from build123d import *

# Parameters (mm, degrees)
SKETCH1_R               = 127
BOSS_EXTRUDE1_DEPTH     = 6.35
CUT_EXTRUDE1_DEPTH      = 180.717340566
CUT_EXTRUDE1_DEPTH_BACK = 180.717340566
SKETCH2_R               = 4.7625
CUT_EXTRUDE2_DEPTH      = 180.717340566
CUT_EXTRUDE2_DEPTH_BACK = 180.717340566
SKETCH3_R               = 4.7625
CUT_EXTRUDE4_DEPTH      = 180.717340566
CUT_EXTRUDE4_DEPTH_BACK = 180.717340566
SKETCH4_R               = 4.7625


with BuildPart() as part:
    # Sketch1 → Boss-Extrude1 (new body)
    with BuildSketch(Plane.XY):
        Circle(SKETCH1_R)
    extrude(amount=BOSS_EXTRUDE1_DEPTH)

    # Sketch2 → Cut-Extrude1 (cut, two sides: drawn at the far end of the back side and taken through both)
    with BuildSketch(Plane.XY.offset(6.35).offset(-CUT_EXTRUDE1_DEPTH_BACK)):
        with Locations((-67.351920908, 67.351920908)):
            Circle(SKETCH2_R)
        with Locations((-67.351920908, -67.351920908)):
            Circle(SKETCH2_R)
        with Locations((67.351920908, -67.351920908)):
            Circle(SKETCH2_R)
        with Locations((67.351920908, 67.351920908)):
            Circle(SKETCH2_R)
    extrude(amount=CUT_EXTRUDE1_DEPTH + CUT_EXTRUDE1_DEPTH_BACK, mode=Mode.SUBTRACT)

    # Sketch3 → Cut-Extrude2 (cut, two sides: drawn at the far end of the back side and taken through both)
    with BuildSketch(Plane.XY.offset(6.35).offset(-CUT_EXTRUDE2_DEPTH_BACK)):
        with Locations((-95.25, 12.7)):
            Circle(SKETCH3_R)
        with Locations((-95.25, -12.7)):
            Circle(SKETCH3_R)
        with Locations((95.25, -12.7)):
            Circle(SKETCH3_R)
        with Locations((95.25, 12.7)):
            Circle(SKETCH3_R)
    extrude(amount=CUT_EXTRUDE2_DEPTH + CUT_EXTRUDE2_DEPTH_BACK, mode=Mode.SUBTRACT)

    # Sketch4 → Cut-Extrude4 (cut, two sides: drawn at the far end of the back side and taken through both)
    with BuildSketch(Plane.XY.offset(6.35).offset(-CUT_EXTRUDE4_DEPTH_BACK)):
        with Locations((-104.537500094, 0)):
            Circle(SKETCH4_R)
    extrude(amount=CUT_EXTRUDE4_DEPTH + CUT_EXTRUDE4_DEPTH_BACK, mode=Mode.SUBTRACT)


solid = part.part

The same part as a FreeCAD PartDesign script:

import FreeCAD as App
import Part
import Sketcher
from FreeCAD import Vector
Q = App.Units.Quantity

doc = App.newDocument("Part")
body = doc.addObject("PartDesign::Body", "Body")

# Sketch on XY plane
sketch1 = doc.addObject("Sketcher::SketchObject", "Sketch")
body.addObject(sketch1)
sketch1.AttachmentSupport = (doc.XY_Plane, [""])
sketch1.MapMode = "FlatFace"
sketch1.addGeometry(Part.Circle(Vector(0, 0, 0), Vector(0, 0, 1), 127), False)
sketch1.addConstraint(Sketcher.Constraint("Coincident", 0, 3, -1, 1))
sketch1.addConstraint(Sketcher.Constraint("Diameter", 0, Q("10 in")))
pad1 = doc.addObject("PartDesign::Pad", "Pad")
body.addObject(pad1)
pad1.Profile = sketch1
pad1.Length = Q("0.25 in")

# Sketch on XY plane
sketch2 = doc.addObject("Sketcher::SketchObject", "Sketch001")
body.addObject(sketch2)
sketch2.AttachmentSupport = (doc.XY_Plane, [""])
sketch2.MapMode = "FlatFace"
sketch2.AttachmentOffset = App.Placement(Vector(0, 0, 0.25 * 25.4), App.Rotation())
sketch2.addGeometry(Part.Circle(Vector(-67.4, 67.4, 0), Vector(0, 0, 1), 4.8), False)
sketch2.addGeometry(Part.Circle(Vector(-67.4, -67.4, 0), Vector(0, 0, 1), 4.8), False)
sketch2.addGeometry(Part.Circle(Vector(67.4, -67.4, 0), Vector(0, 0, 1), 4.8), False)
sketch2.addGeometry(Part.Circle(Vector(67.4, 67.4, 0), Vector(0, 0, 1), 4.8), False)
sketch2.addConstraint(Sketcher.Constraint("Equal", 0, 1))
sketch2.addConstraint(Sketcher.Constraint("Equal", 1, 2))
sketch2.addConstraint(Sketcher.Constraint("Equal", 2, 3))
sketch2.addConstraint(Sketcher.Constraint("Symmetric", 0, 3, 2, 3, -1, 1))
sketch2.addConstraint(Sketcher.Constraint("Symmetric", 1, 3, 3, 3, -1, 1))
sketch2.addConstraint(Sketcher.Constraint("Symmetric", 1, 3, 2, 3, -2))
sketch2.addConstraint(Sketcher.Constraint("Diameter", 0, Q("0.375 in")))
sketch2.addConstraint(Sketcher.Constraint("DistanceX", 0, 3, -1, 1, Q("67.351921 mm")))
sketch2.addConstraint(Sketcher.Constraint("DistanceY", -1, 1, 0, 3, Q("67.351921 mm")))
pocket1 = doc.addObject("PartDesign::Pocket", "Pocket")
body.addObject(pocket1)
pocket1.Profile = sketch2
pocket1.Type = "ThroughAll"
pocket1.Midplane = True

# Sketch on XY plane
sketch3 = doc.addObject("Sketcher::SketchObject", "Sketch002")
body.addObject(sketch3)
sketch3.AttachmentSupport = (doc.XY_Plane, [""])
sketch3.MapMode = "FlatFace"
sketch3.AttachmentOffset = App.Placement(Vector(0, 0, 0.25 * 25.4), App.Rotation())
sketch3.addGeometry(Part.Circle(Vector(-95.2, 12.7, 0), Vector(0, 0, 1), 4.8), False)
sketch3.addGeometry(Part.Circle(Vector(-95.2, -12.7, 0), Vector(0, 0, 1), 4.8), False)
sketch3.addGeometry(Part.Circle(Vector(95.2, -12.7, 0), Vector(0, 0, 1), 4.8), False)
sketch3.addGeometry(Part.Circle(Vector(95.2, 12.7, 0), Vector(0, 0, 1), 4.8), False)
sketch3.addConstraint(Sketcher.Constraint("Equal", 0, 1))
sketch3.addConstraint(Sketcher.Constraint("Equal", 1, 2))
sketch3.addConstraint(Sketcher.Constraint("Equal", 2, 3))
sketch3.addConstraint(Sketcher.Constraint("Symmetric", 0, 3, 2, 3, -1, 1))
sketch3.addConstraint(Sketcher.Constraint("Symmetric", 1, 3, 3, 3, -1, 1))
sketch3.addConstraint(Sketcher.Constraint("Symmetric", 1, 3, 2, 3, -2))
sketch3.addConstraint(Sketcher.Constraint("Diameter", 0, Q("0.375 in")))
sketch3.addConstraint(Sketcher.Constraint("DistanceY", 1, 3, 0, 3, Q("1 in")))
sketch3.addConstraint(Sketcher.Constraint("DistanceX", 1, 3, 2, 3, Q("7.5 in")))
pocket2 = doc.addObject("PartDesign::Pocket", "Pocket001")
body.addObject(pocket2)
pocket2.Profile = sketch3
pocket2.Type = "ThroughAll"
pocket2.Midplane = True

# Sketch on XY plane
sketch4 = doc.addObject("Sketcher::SketchObject", "Sketch003")
body.addObject(sketch4)
sketch4.AttachmentSupport = (doc.XY_Plane, [""])
sketch4.MapMode = "FlatFace"
sketch4.AttachmentOffset = App.Placement(Vector(0, 0, 0.25 * 25.4), App.Rotation())
sketch4.addGeometry(Part.Circle(Vector(-104.5, 0, 0), Vector(0, 0, 1), 4.8), False)
sketch4.addConstraint(Sketcher.Constraint("PointOnObject", 0, 3, -1))
sketch4.addConstraint(Sketcher.Constraint("Diameter", 0, Q("0.375 in")))
sketch4.addConstraint(Sketcher.Constraint("DistanceX", 0, 3, -1, 1, Q("104.5375 mm")))
pocket3 = doc.addObject("PartDesign::Pocket", "Pocket002")
body.addObject(pocket3)
pocket3.Profile = sketch4
pocket3.Type = "ThroughAll"
pocket3.Midplane = True

doc.recompute()
